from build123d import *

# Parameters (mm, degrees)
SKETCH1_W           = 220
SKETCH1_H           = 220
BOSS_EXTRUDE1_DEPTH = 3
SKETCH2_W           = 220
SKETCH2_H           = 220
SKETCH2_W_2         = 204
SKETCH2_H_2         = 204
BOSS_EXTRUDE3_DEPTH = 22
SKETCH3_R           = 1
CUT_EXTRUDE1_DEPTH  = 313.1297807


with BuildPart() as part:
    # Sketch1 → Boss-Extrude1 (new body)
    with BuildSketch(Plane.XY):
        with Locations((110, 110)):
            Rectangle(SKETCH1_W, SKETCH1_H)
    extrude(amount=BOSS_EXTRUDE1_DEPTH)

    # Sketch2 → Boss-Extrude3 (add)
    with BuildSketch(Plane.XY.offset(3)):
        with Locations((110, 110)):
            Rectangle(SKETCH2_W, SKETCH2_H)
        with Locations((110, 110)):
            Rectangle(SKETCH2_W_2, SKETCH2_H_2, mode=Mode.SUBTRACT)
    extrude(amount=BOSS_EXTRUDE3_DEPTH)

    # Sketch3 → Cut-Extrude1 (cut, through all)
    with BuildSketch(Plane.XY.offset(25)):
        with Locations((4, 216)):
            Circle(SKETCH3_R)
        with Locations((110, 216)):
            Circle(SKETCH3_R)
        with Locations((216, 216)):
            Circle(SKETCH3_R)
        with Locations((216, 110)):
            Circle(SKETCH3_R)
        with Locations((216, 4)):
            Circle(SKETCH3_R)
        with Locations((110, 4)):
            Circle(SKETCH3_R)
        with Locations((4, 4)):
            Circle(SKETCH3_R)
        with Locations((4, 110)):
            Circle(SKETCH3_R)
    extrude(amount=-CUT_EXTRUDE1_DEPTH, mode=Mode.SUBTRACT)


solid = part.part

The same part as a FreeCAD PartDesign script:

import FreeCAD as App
import Part
import Sketcher

V = App.Vector

doc = App.newDocument("Part")
body = doc.addObject("PartDesign::Body", "Body")

sketch1 = body.newObject("Sketcher::SketchObject", "Sketch")
sketch1.AttachmentSupport = (doc.getObject("XY_Plane"), [""])
sketch1.MapMode = "FlatFace"
sketch1.addGeometry(Part.LineSegment(V(0, 220, 0), V(0, 0, 0)), False)
sketch1.addGeometry(Part.LineSegment(V(0, 0, 0), V(220, 0, 0)), False)
sketch1.addGeometry(Part.LineSegment(V(220, 0, 0), V(220, 220, 0)), False)
sketch1.addGeometry(Part.LineSegment(V(220, 220, 0), V(0, 220, 0)), False)
sketch1.addConstraint(Sketcher.Constraint("Coincident", 0, 2, 1, 1))
sketch1.addConstraint(Sketcher.Constraint("Coincident", 1, 2, 2, 1))
sketch1.addConstraint(Sketcher.Constraint("Coincident", 2, 2, 3, 1))
sketch1.addConstraint(Sketcher.Constraint("Coincident", 3, 2, 0, 1))
sketch1.addConstraint(Sketcher.Constraint("Vertical", 0))
sketch1.addConstraint(Sketcher.Constraint("Horizontal", 1))
sketch1.addConstraint(Sketcher.Constraint("Vertical", 2))
sketch1.addConstraint(Sketcher.Constraint("Horizontal", 3))
sketch1.addConstraint(Sketcher.Constraint("Coincident", 0, 2, -1, 1))
sketch1.addConstraint(Sketcher.Constraint("Equal", 3, 0))
sketch1.addConstraint(Sketcher.Constraint("DistanceX", 1, 1, 1, 2, 220.0))
pad1 = body.newObject("PartDesign::Pad", "Pad")
pad1.Profile = sketch1
pad1.Length = 3

sketch2 = body.newObject("Sketcher::SketchObject", "Sketch001")
sketch2.AttachmentSupport = (doc.getObject("XY_Plane"), [""])
sketch2.MapMode = "FlatFace"
sketch2.AttachmentOffset = App.Placement(V(0, 0, 3), App.Rotation())
sketch2.addGeometry(Part.LineSegment(V(0, 220, 0), V(0, 0, 0)), False)
sketch2.addGeometry(Part.LineSegment(V(0, 0, 0), V(220, 0, 0)), False)
sketch2.addGeometry(Part.LineSegment(V(220, 0, 0), V(220, 220, 0)), False)
sketch2.addGeometry(Part.LineSegment(V(220, 220, 0), V(0, 220, 0)), False)
sketch2.addGeometry(Part.LineSegment(V(212, 8, 0), V(8, 8, 0)), False)
sketch2.addGeometry(Part.LineSegment(V(8, 8, 0), V(8, 212, 0)), False)
sketch2.addGeometry(Part.LineSegment(V(8, 212, 0), V(212, 212, 0)), False)
sketch2.addGeometry(Part.LineSegment(V(212, 212, 0), V(212, 8, 0)), False)
sketch2.addConstraint(Sketcher.Constraint("Coincident", 0, 2, 1, 1))
sketch2.addConstraint(Sketcher.Constraint("Coincident", 1, 2, 2, 1))
sketch2.addConstraint(Sketcher.Constraint("Coincident", 2, 2, 3, 1))
sketch2.addConstraint(Sketcher.Constraint("Coincident", 3, 2, 0, 1))
sketch2.addConstraint(Sketcher.Constraint("Coincident", 4, 2, 5, 1))
sketch2.addConstraint(Sketcher.Constraint("Coincident", 5, 2, 6, 1))
sketch2.addConstraint(Sketcher.Constraint("Coincident", 6, 2, 7, 1))
sketch2.addConstraint(Sketcher.Constraint("Coincident", 7, 2, 4, 1))
sketch2.addConstraint(Sketcher.Constraint("Vertical", 0))
sketch2.addConstraint(Sketcher.Constraint("Horizontal", 1))
sketch2.addConstraint(Sketcher.Constraint("Vertical", 2))
sketch2.addConstraint(Sketcher.Constraint("Horizontal", 3))
sketch2.addConstraint(Sketcher.Constraint("Horizontal", 4))
sketch2.addConstraint(Sketcher.Constraint("Vertical", 5))
sketch2.addConstraint(Sketcher.Constraint("Horizontal", 6))
sketch2.addConstraint(Sketcher.Constraint("Vertical", 7))
sketch2.addConstraint(Sketcher.Constraint("Coincident", 0, 2, -1, 1))
sketch2.addConstraint(Sketcher.Constraint("Equal", 3, 0))
sketch2.addConstraint(Sketcher.Constraint("Equal", 6, 5))
sketch2.addConstraint(Sketcher.Constraint("DistanceX", 1, 1, 1, 2, 220.0))
sketch2.addConstraint(Sketcher.Constraint("DistanceX", 4, 2, 4, 1, 204.0))
sketch2.addConstraint(Sketcher.Constraint("DistanceX", -1, 1, 4, 2, 8.0))
sketch2.addConstraint(Sketcher.Constraint("DistanceY", -1, 1, 4, 2, 8.0))
pad2 = body.newObject("PartDesign::Pad", "Pad001")
pad2.Profile = sketch2
pad2.Length = 22

sketch3 = body.newObject("Sketcher::SketchObject", "Sketch002")
sketch3.AttachmentSupport = (doc.getObject("XY_Plane"), [""])
sketch3.MapMode = "FlatFace"
sketch3.AttachmentOffset = App.Placement(V(0, 0, 25), App.Rotation())
sketch3.addGeometry(Part.Circle(V(4, 216, 0), V(0, 0, 1), 1), False)
sketch3.addGeometry(Part.Circle(V(110, 216, 0), V(0, 0, 1), 1), False)
sketch3.addGeometry(Part.Circle(V(216, 216, 0), V(0, 0, 1), 1), False)
sketch3.addGeometry(Part.Circle(V(216, 110, 0), V(0, 0, 1), 1), False)
sketch3.addGeometry(Part.Circle(V(216, 4, 0), V(0, 0, 1), 1), False)
sketch3.addGeometry(Part.Circle(V(110, 4, 0), V(0, 0, 1), 1), False)
sketch3.addGeometry(Part.Circle(V(4, 4, 0), V(0, 0, 1), 1), False)
sketch3.addGeometry(Part.Circle(V(4, 110, 0), V(0, 0, 1), 1), False)
sketch3.addConstraint(Sketcher.Constraint("Equal", 0, 1))
sketch3.addConstraint(Sketcher.Constraint("Equal", 1, 2))
sketch3.addConstraint(Sketcher.Constraint("Equal", 2, 3))
sketch3.addConstraint(Sketcher.Constraint("Equal", 3, 4))
sketch3.addConstraint(Sketcher.Constraint("Equal", 4, 5))
sketch3.addConstraint(Sketcher.Constraint("Equal", 5, 6))
sketch3.addConstraint(Sketcher.Constraint("Equal", 6, 7))
sketch3.addConstraint(Sketcher.Constraint("Horizontal", 0, 3, 1, 3))
sketch3.addConstraint(Sketcher.Constraint("Horizontal", 1, 3, 2, 3))
sketch3.addConstraint(Sketcher.Constraint("Horizontal", 4, 3, 5, 3))
sketch3.addConstraint(Sketcher.Constraint("Horizontal", 5, 3, 6, 3))
sketch3.addConstraint(Sketcher.Constraint("Horizontal", 3, 3, 7, 3))
sketch3.addConstraint(Sketcher.Constraint("Vertical", 2, 3, 3, 3))
sketch3.addConstraint(Sketcher.Constraint("Vertical", 3, 3, 4, 3))
sketch3.addConstraint(Sketcher.Constraint("Vertical", 1, 3, 5, 3))
sketch3.addConstraint(Sketcher.Constraint("Vertical", 0, 3, 6, 3))
sketch3.addConstraint(Sketcher.Constraint("Vertical", 6, 3, 7, 3))
sketch3.addConstraint(Sketcher.Constraint("Diameter", 0, 2.0))
sketch3.addConstraint(Sketcher.Constraint("DistanceX", -1, 1, 0, 3, 4.0))
sketch3.addConstraint(Sketcher.Constraint("DistanceY", -1, 1, 0, 3, 216.0))
sketch3.addConstraint(Sketcher.Constraint("DistanceX", -1, 1, 1, 3, 110.0))
sketch3.addConstraint(Sketcher.Constraint("DistanceX", -1, 1, 2, 3, 216.0))
sketch3.addConstraint(Sketcher.Constraint("DistanceY", -1, 1, 3, 3, 110.0))
sketch3.addConstraint(Sketcher.Constraint("DistanceY", -1, 1, 4, 3, 4.0))
pocket1 = body.newObject("PartDesign::Pocket", "Pocket")
pocket1.Profile = sketch3
pocket1.Type = "ThroughAll"

doc.recompute()
